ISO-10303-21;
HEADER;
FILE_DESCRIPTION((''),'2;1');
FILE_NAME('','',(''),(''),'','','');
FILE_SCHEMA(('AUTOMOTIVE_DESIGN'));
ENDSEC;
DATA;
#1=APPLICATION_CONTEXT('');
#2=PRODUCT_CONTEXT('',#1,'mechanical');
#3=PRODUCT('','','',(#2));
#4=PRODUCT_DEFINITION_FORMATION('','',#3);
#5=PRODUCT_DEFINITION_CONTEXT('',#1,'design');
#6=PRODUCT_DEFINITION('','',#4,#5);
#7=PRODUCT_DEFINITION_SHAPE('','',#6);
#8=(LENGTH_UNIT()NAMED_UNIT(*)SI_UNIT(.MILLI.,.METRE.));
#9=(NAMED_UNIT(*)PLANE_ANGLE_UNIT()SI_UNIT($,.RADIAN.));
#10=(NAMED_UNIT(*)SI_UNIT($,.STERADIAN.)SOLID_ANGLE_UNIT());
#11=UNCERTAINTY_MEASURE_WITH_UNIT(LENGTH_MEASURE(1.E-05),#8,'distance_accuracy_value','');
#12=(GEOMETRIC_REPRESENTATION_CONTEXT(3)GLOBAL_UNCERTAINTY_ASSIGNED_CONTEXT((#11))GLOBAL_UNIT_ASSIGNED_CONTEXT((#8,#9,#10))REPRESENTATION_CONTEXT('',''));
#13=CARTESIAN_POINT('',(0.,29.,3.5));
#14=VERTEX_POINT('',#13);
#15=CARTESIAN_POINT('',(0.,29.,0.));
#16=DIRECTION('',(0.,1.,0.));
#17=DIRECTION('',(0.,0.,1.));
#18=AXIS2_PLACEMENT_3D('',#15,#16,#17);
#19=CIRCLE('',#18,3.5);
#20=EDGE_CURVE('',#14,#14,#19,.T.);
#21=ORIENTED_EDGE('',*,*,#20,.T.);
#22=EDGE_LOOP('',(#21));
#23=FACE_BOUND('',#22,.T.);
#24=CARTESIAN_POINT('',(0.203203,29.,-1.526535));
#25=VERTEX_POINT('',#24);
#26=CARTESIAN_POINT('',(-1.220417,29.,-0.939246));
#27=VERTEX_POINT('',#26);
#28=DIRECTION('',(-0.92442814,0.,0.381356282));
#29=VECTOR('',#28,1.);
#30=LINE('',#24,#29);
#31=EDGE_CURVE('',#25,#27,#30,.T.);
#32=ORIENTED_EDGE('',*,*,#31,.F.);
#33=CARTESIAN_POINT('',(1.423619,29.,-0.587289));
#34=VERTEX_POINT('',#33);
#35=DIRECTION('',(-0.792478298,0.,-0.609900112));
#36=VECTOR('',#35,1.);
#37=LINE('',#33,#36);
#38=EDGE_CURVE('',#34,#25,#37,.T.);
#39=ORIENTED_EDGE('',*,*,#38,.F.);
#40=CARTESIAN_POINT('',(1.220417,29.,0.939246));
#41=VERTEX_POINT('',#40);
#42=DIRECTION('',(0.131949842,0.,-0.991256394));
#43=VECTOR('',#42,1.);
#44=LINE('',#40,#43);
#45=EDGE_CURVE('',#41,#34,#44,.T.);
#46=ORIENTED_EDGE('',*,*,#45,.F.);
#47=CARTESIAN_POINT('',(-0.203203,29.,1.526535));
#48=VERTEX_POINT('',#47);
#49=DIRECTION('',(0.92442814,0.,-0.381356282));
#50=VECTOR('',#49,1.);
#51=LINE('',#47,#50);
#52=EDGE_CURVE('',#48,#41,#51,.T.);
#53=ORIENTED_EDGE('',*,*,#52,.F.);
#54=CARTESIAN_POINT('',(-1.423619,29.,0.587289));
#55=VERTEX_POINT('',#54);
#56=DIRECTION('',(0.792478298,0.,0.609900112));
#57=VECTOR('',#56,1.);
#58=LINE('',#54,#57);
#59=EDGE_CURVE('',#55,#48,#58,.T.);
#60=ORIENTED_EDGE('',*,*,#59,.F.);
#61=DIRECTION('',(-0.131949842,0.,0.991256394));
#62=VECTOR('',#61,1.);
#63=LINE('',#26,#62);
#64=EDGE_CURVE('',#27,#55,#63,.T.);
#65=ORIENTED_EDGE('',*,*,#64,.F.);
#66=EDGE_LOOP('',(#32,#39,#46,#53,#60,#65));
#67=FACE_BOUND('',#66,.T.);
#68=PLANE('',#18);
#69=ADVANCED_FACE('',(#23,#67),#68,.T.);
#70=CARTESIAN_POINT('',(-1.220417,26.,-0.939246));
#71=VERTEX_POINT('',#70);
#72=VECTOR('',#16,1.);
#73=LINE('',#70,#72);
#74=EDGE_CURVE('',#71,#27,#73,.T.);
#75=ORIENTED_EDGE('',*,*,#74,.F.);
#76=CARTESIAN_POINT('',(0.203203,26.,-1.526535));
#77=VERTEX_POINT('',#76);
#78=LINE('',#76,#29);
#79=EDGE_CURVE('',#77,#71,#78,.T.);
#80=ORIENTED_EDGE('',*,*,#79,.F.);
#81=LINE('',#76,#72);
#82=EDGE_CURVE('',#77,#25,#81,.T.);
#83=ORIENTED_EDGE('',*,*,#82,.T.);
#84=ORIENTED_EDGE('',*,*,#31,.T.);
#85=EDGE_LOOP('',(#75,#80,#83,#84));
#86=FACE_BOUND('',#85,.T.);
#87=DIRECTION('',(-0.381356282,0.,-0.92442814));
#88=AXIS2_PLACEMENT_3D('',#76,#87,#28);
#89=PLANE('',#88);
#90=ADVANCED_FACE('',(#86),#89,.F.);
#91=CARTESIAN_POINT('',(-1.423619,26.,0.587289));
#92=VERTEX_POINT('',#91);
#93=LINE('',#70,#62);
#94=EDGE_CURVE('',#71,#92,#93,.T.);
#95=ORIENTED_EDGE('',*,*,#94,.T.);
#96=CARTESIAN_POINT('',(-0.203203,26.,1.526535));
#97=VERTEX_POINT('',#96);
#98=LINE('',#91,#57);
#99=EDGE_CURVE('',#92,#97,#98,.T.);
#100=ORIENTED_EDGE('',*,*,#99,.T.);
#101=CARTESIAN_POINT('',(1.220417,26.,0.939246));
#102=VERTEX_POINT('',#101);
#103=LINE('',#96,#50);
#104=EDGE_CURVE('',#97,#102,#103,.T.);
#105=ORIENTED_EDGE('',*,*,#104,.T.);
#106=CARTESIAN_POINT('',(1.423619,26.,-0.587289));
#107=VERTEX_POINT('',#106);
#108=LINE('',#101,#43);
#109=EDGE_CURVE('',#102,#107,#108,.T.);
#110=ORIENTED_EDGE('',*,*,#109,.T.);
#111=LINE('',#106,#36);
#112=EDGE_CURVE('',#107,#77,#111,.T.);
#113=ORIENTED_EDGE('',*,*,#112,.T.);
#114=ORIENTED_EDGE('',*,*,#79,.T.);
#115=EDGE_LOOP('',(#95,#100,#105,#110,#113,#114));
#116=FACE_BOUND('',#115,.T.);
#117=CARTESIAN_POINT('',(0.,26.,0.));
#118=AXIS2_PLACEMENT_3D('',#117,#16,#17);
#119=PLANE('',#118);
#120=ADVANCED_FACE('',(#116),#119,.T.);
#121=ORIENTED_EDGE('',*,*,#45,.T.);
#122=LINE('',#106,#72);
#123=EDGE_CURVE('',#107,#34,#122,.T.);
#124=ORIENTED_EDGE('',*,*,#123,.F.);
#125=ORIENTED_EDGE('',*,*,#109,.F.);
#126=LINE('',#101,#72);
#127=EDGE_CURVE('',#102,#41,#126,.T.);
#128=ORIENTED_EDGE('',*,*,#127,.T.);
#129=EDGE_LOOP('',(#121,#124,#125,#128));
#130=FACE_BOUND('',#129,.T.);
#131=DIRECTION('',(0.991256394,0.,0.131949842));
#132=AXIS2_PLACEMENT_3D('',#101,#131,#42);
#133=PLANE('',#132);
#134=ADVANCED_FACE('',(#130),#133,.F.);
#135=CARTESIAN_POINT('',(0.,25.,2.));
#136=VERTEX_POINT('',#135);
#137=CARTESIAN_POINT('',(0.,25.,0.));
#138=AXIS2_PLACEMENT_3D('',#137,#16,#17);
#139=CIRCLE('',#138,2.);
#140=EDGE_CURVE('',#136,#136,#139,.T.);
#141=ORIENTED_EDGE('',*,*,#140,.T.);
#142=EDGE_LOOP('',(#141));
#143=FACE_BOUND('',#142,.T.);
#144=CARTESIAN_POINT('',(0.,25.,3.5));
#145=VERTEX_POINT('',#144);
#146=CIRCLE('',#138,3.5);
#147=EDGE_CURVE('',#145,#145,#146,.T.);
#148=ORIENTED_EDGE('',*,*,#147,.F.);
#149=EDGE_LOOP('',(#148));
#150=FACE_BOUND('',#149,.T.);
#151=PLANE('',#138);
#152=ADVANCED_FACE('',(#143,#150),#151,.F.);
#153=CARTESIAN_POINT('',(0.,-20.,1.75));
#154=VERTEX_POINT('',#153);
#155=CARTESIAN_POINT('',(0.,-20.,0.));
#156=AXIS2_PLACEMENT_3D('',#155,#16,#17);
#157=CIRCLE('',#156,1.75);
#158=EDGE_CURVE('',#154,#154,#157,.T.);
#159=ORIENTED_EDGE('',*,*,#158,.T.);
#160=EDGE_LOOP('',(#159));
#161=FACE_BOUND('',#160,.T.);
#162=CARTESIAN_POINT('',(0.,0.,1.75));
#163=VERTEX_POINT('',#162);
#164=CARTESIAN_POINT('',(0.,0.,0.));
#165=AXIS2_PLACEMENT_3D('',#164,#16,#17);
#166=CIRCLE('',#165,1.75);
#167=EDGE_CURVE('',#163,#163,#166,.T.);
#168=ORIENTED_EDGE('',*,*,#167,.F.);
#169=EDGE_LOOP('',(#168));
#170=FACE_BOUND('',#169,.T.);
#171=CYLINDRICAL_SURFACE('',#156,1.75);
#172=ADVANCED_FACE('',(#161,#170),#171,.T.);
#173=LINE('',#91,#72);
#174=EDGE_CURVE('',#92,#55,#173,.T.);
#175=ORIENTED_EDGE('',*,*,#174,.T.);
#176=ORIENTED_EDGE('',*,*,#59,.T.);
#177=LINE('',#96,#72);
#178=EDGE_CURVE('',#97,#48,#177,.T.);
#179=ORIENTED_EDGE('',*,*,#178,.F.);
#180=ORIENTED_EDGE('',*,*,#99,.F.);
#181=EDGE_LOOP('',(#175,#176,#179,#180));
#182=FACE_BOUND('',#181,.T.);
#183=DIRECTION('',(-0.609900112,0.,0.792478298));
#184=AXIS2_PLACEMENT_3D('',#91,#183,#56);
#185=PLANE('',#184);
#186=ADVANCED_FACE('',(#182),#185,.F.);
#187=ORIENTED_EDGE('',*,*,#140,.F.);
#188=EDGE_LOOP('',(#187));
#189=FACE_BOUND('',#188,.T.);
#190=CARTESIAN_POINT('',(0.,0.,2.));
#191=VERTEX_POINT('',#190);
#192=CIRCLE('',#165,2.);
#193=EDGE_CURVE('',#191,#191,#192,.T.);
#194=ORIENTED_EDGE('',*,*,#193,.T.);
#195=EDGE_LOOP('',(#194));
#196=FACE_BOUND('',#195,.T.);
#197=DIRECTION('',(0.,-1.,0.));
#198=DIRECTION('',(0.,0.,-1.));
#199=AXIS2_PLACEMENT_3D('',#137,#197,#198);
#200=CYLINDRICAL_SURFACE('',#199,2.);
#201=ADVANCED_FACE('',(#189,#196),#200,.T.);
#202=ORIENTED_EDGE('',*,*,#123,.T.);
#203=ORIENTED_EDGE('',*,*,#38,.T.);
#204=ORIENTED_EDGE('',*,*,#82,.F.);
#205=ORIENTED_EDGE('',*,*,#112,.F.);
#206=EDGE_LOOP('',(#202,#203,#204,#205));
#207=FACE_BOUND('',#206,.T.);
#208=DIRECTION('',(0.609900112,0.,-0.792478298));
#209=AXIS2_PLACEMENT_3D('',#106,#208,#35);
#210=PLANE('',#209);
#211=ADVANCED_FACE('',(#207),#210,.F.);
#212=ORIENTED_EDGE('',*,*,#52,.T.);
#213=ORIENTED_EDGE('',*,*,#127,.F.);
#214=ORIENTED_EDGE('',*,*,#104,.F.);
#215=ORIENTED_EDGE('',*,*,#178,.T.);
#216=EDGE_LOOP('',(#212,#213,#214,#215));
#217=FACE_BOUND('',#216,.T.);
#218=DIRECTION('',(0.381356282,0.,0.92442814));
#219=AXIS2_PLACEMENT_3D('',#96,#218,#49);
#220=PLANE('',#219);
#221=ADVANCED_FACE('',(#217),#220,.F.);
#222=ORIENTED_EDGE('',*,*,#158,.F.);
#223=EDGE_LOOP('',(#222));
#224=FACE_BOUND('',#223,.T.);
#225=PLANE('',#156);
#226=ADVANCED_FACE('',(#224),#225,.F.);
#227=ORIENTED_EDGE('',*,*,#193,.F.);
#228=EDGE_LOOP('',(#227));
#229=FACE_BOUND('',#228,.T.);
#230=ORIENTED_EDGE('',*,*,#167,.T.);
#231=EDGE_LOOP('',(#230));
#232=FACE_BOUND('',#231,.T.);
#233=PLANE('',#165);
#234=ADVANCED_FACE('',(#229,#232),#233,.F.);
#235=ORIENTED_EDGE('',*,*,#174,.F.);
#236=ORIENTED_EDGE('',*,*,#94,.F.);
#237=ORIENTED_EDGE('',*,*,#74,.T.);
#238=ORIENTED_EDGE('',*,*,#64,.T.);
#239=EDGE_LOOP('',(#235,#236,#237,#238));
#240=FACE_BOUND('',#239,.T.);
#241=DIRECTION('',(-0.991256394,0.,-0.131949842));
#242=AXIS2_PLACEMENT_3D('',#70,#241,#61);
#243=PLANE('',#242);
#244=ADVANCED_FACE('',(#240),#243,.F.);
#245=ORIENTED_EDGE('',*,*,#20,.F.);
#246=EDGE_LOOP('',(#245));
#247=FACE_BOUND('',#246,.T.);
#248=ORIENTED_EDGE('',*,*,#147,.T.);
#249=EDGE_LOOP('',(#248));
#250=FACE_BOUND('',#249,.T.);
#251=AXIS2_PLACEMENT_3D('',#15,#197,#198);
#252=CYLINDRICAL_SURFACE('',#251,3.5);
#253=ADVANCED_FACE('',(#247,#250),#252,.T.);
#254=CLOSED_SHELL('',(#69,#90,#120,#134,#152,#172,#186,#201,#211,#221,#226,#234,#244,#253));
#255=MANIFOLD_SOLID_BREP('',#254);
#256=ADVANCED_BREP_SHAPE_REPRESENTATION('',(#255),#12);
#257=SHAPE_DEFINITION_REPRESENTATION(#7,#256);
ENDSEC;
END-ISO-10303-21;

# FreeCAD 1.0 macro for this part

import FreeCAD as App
import Part
import Sketcher

V = App.Vector
Q = App.Units.Quantity

doc = App.newDocument("Part")
body = doc.addObject("PartDesign::Body", "Body")

# Sketch on XZ plane
sketch1 = doc.addObject("Sketcher::SketchObject", "Sketch")
body.addObject(sketch1)
sketch1.AttachmentSupport = (doc.XZ_Plane, [""])
sketch1.MapMode = "FlatFace"
sketch1.addGeometry(Part.Circle(V(0, 0, 0), V(0, 0, 1), 2), False)
sketch1.addConstraint([
    Sketcher.Constraint("Coincident", 0, 3, -1, 1),
    Sketcher.Constraint("Diameter", 0, Q("4 mm")),
])
pad1 = doc.addObject("PartDesign::Pad", "Pad")
body.addObject(pad1)
pad1.Profile = sketch1
pad1.Length = 25
pad1.Reversed = True

# Sketch on XZ plane
sketch2 = doc.addObject("Sketcher::SketchObject", "Sketch001")
body.addObject(sketch2)
sketch2.AttachmentSupport = (doc.XZ_Plane, [""])
sketch2.MapMode = "FlatFace"
sketch2.addGeometry(Part.Circle(V(0, 0, 0), V(0, 0, 1), 1.8), False)
sketch2.addConstraint([
    Sketcher.Constraint("Coincident", 0, 3, -1, 1),
    Sketcher.Constraint("Diameter", 0, Q("3.5 mm")),
])
pad2 = doc.addObject("PartDesign::Pad", "Pad001")
body.addObject(pad2)
pad2.Profile = sketch2
pad2.Length = 20

# Sketch on XZ plane
sketch3 = doc.addObject("Sketcher::SketchObject", "Sketch002")
body.addObject(sketch3)
sketch3.AttachmentSupport = (doc.XZ_Plane, [""])
sketch3.MapMode = "FlatFace"
sketch3.AttachmentOffset = App.Placement(V(0, 0, -25), App.Rotation())
sketch3.addGeometry(Part.Circle(V(0, 0, 0), V(0, 0, 1), 3.5), False)
sketch3.addConstraint([
    Sketcher.Constraint("Coincident", 0, 3, -1, 1),
    Sketcher.Constraint("Diameter", 0, Q("7 mm")),
])
pad3 = doc.addObject("PartDesign::Pad", "Pad002")
body.addObject(pad3)
pad3.Profile = sketch3
pad3.Length = 4
pad3.Reversed = True

# Sketch on XZ plane
sketch4 = doc.addObject("Sketcher::SketchObject", "Sketch003")
body.addObject(sketch4)
sketch4.AttachmentSupport = (doc.XZ_Plane, [""])
sketch4.MapMode = "FlatFace"
sketch4.AttachmentOffset = App.Placement(V(0, 0, -29), App.Rotation())
sketch4.addGeometry([
    Part.LineSegment(V(1.2, 0.9, 0), V(1.4, -0.6, 0)),  # 0
    Part.LineSegment(V(1.4, -0.6, 0), V(0.2, -1.5, 0)),  # 1
    Part.LineSegment(V(0.2, -1.5, 0), V(-1.2, -0.9, 0)),  # 2
    Part.LineSegment(V(-1.2, -0.9, 0), V(-1.4, 0.6, 0)),  # 3
    Part.LineSegment(V(-1.4, 0.6, 0), V(-0.2, 1.5, 0)),  # 4
    Part.LineSegment(V(-0.2, 1.5, 0), V(1.2, 0.9, 0)),  # 5
], False)
sketch4.addConstraint([
    Sketcher.Constraint("Coincident", 0, 2, 1, 1),
    Sketcher.Constraint("Coincident", 1, 2, 2, 1),
    Sketcher.Constraint("Coincident", 2, 2, 3, 1),
    Sketcher.Constraint("Coincident", 3, 2, 4, 1),
    Sketcher.Constraint("Coincident", 4, 2, 5, 1),
    Sketcher.Constraint("Coincident", 5, 2, 0, 1),
    Sketcher.Constraint("Symmetric", 0, 2, 3, 2, -1, 1),
    Sketcher.Constraint("Symmetric", 1, 2, 4, 2, -1, 1),
    Sketcher.Constraint("Symmetric", 2, 2, 5, 2, -1, 1),
    Sketcher.Constraint("Equal", 0, 1),
    Sketcher.Constraint("Equal", 1, 2),
    Sketcher.Constraint("Distance", 0, Q("1.54 mm")),
    Sketcher.Constraint("DistanceX", -1, 1, 0, 2, Q("1.423619 mm")),
    Sketcher.Constraint("DistanceY", 0, 2, -1, 1, Q("0.587289 mm")),
    Sketcher.Constraint("DistanceX", 2, 2, 1, 2, Q("1.423619 mm")),
])
pocket1 = doc.addObject("PartDesign::Pocket", "Pocket")
body.addObject(pocket1)
pocket1.Profile = sketch4
pocket1.Length = 3
pocket1.Reversed = True

doc.recompute()
